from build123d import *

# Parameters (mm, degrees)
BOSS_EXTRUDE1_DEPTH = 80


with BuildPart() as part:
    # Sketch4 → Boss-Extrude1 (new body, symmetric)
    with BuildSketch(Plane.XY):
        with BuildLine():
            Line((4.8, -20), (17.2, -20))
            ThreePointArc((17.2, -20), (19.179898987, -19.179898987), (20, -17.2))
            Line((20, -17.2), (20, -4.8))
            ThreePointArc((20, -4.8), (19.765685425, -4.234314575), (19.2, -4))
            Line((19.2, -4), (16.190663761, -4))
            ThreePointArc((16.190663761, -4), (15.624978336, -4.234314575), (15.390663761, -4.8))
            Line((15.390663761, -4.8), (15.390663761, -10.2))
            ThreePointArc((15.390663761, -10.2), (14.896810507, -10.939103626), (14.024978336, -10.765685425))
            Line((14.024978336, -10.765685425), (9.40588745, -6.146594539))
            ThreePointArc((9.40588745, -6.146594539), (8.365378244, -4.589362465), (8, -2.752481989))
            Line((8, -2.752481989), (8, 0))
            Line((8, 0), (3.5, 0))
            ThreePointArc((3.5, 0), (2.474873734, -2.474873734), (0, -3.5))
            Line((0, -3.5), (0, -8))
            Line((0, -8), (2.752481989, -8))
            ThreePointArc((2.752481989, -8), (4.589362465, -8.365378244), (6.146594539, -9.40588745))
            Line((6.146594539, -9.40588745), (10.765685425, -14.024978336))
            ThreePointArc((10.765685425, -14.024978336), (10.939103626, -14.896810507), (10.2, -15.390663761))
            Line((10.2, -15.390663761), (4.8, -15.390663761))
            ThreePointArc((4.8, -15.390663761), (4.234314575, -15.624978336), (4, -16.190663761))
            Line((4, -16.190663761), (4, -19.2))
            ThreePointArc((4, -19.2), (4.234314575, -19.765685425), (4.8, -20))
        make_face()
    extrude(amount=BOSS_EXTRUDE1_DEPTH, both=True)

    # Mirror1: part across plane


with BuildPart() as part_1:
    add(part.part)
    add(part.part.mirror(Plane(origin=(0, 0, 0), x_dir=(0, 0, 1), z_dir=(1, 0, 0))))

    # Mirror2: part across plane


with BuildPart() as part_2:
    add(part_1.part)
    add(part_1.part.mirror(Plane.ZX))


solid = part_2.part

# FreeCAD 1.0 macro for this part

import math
import FreeCAD as App
import Part
import Sketcher

V = App.Vector

doc = App.newDocument("Part")
body = doc.addObject("PartDesign::Body", "Body")

# Sketch on XY plane
sketch1 = body.newObject("Sketcher::SketchObject", "Sketch")
sketch1.AttachmentSupport = (doc.getObject("XY_Plane"), [""])
sketch1.MapMode = "FlatFace"
sketch1.addGeometry(Part.LineSegment(V(4.8, -20, 0), V(17.2, -20, 0)), False)
sketch1.addGeometry(Part.ArcOfCircle(Part.Circle(V(17.2, -17.2, 0), V(0, 0, 1), 2.8), math.radians(-90), math.radians(0)), False)
sketch1.addGeometry(Part.LineSegment(V(20, -17.2, 0), V(20, -4.8, 0)), False)
sketch1.addGeometry(Part.ArcOfCircle(Part.Circle(V(19.2, -4.8, 0), V(0, 0, 1), 0.8), math.radians(0), math.radians(90)), False)
sketch1.addGeometry(Part.LineSegment(V(19.2, -4, 0), V(16.2, -4, 0)), False)
sketch1.addGeometry(Part.ArcOfCircle(Part.Circle(V(16.2, -4.8, 0), V(0, 0, 1), 0.8), math.radians(90), math.radians(180)), False)
sketch1.addGeometry(Part.LineSegment(V(15.4, -4.8, 0), V(15.4, -10.2, 0)), False)
sketch1.addGeometry(Part.ArcOfCircle(Part.Circle(V(14.6, -10.2, 0), V(0, 0, 1), 0.8), math.radians(-135), math.radians(0)), False)
sketch1.addGeometry(Part.LineSegment(V(14, -10.8, 0), V(9.4, -6.1, 0)), False)
sketch1.addGeometry(Part.ArcOfCircle(Part.Circle(V(12.8, -2.8, 0), V(0, 0, 1), 4.8), math.radians(180), math.radians(225)), False)
sketch1.addGeometry(Part.LineSegment(V(8, -2.8, 0), V(8, 0, 0)), False)
sketch1.addGeometry(Part.LineSegment(V(8, 0, 0), V(3.5, 0, 0)), False)
sketch1.addGeometry(Part.ArcOfCircle(Part.Circle(V(0, 0, 0), V(0, 0, 1), 3.5), math.radians(-90), math.radians(0)), False)
sketch1.addGeometry(Part.LineSegment(V(0, -3.5, 0), V(0, -8, 0)), False)
sketch1.addGeometry(Part.LineSegment(V(0, -8, 0), V(2.8, -8, 0)), False)
sketch1.addGeometry(Part.ArcOfCircle(Part.Circle(V(2.8, -12.8, 0), V(0, 0, 1), 4.8), math.radians(45), math.radians(90)), False)
sketch1.addGeometry(Part.LineSegment(V(6.1, -9.4, 0), V(10.8, -14, 0)), False)
sketch1.addGeometry(Part.ArcOfCircle(Part.Circle(V(10.2, -14.6, 0), V(0, 0, 1), 0.8), math.radians(-90), math.radians(45)), False)
sketch1.addGeometry(Part.LineSegment(V(10.2, -15.4, 0), V(4.8, -15.4, 0)), False)
sketch1.addGeometry(Part.ArcOfCircle(Part.Circle(V(4.8, -16.2, 0), V(0, 0, 1), 0.8), math.radians(90), math.radians(180)), False)
sketch1.addGeometry(Part.LineSegment(V(4, -16.2, 0), V(4, -19.2, 0)), False)
sketch1.addGeometry(Part.ArcOfCircle(Part.Circle(V(4.8, -19.2, 0), V(0, 0, 1), 0.8), math.radians(180), math.radians(270)), False)
sketch1.addConstraint(Sketcher.Constraint("Tangent", 0, 2, 1, 1))
sketch1.addConstraint(Sketcher.Constraint("Tangent", 1, 2, 2, 1))
sketch1.addConstraint(Sketcher.Constraint("Tangent", 2, 2, 3, 1))
sketch1.addConstraint(Sketcher.Constraint("Tangent", 3, 2, 4, 1))
sketch1.addConstraint(Sketcher.Constraint("Tangent", 4, 2, 5, 1))
sketch1.addConstraint(Sketcher.Constraint("Tangent", 5, 2, 6, 1))
sketch1.addConstraint(Sketcher.Constraint("Tangent", 6, 2, 7, 2))
sketch1.addConstraint(Sketcher.Constraint("Tangent", 7, 1, 8, 1))
sketch1.addConstraint(Sketcher.Constraint("Tangent", 8, 2, 9, 2))
sketch1.addConstraint(Sketcher.Constraint("Tangent", 9, 1, 10, 1))
sketch1.addConstraint(Sketcher.Constraint("Coincident", 10, 2, 11, 1))
sketch1.addConstraint(Sketcher.Constraint("Coincident", 11, 2, 12, 2))
sketch1.addConstraint(Sketcher.Constraint("Coincident", 12, 1, 13, 1))
sketch1.addConstraint(Sketcher.Constraint("Coincident", 13, 2, 14, 1))
sketch1.addConstraint(Sketcher.Constraint("Tangent", 14, 2, 15, 2))
sketch1.addConstraint(Sketcher.Constraint("Tangent", 15, 1, 16, 1))
sketch1.addConstraint(Sketcher.Constraint("Tangent", 16, 2, 17, 2))
sketch1.addConstraint(Sketcher.Constraint("Tangent", 17, 1, 18, 1))
sketch1.addConstraint(Sketcher.Constraint("Tangent", 18, 2, 19, 1))
sketch1.addConstraint(Sketcher.Constraint("Tangent", 19, 2, 20, 1))
sketch1.addConstraint(Sketcher.Constraint("Tangent", 20, 2, 21, 1))
sketch1.addConstraint(Sketcher.Constraint("Tangent", 21, 2, 0, 1))
sketch1.addConstraint(Sketcher.Constraint("Horizontal", 0))
sketch1.addConstraint(Sketcher.Constraint("Vertical", 2))
sketch1.addConstraint(Sketcher.Constraint("Horizontal", 4))
sketch1.addConstraint(Sketcher.Constraint("Vertical", 6))
sketch1.addConstraint(Sketcher.Constraint("Vertical", 10))
sketch1.addConstraint(Sketcher.Constraint("Horizontal", 11))
sketch1.addConstraint(Sketcher.Constraint("Vertical", 13))
sketch1.addConstraint(Sketcher.Constraint("Horizontal", 14))
sketch1.addConstraint(Sketcher.Constraint("Horizontal", 18))
sketch1.addConstraint(Sketcher.Constraint("Vertical", 20))
sketch1.addConstraint(Sketcher.Constraint("Coincident", 12, 3, -1, 1))
sketch1.addConstraint(Sketcher.Constraint("Equal", 3, 5))
sketch1.addConstraint(Sketcher.Constraint("Equal", 5, 7))
sketch1.addConstraint(Sketcher.Constraint("Equal", 9, 15))
sketch1.addConstraint(Sketcher.Constraint("Equal", 7, 17))
sketch1.addConstraint(Sketcher.Constraint("Equal", 17, 19))
sketch1.addConstraint(Sketcher.Constraint("Equal", 19, 21))
sketch1.addConstraint(Sketcher.Constraint("PointOnObject", 10, 2, -1))
sketch1.addConstraint(Sketcher.Constraint("PointOnObject", 12, 1, -2))
sketch1.addConstraint(Sketcher.Constraint("Parallel", 8, 16))
sketch1.addConstraint(Sketcher.Constraint("Equal", 0, 2))
sketch1.addConstraint(Sketcher.Constraint("Equal", 18, 6))
sketch1.addConstraint(Sketcher.Constraint("Equal", 14, 10))
sketch1.addConstraint(Sketcher.Constraint("Equal", 11, 13))
sketch1.addConstraint(Sketcher.Constraint("Equal", 4, 20))
sketch1.addConstraint(Sketcher.Constraint("Equal", 8, 16))
sketch1.addConstraint(Sketcher.Constraint("Radius", 1, 2.8))
sketch1.addConstraint(Sketcher.Constraint("Radius", 3, 0.8))
sketch1.addConstraint(Sketcher.Constraint("Radius", 9, 4.8))
sketch1.addConstraint(Sketcher.Constraint("Radius", 12, 3.5))
sketch1.addConstraint(Sketcher.Constraint("DistanceX", 0, 1, 0, 2, 12.4))
sketch1.addConstraint(Sketcher.Constraint("DistanceX", 11, 2, 11, 1, 4.5))
sketch1.addConstraint(Sketcher.Constraint("DistanceX", 18, 2, 18, 1, 5.4))
sketch1.addConstraint(Sketcher.Constraint("DistanceY", 0, 2, -1, 1, 20.0))
sketch1.addConstraint(Sketcher.Constraint("DistanceX", 14, 1, 14, 2, 2.752482))
pad1 = body.newObject("PartDesign::Pad", "Pad")
pad1.Profile = sketch1
pad1.Length = 160
pad1.Midplane = True
body2 = doc.addObject("PartDesign::Body", "Body001")
doc.recompute()

body2.BaseFeature = body
doc.recompute()

mirroring = doc.addObject("Part::Mirroring", "Mirroring")
mirroring.Source = body
mirroring.Base = V(0, 0, 0)
mirroring.Normal = V(1, 0, 0)
body3 = doc.addObject("PartDesign::Body", "Body002")
body3.BaseFeature = mirroring
boolean = body2.newObject("PartDesign::Boolean", "Boolean")
boolean.Type = "Fuse"
boolean.addObjects([body3])
doc.recompute()
body4 = doc.addObject("PartDesign::Body", "Body003")
doc.recompute()

body4.BaseFeature = body2
doc.recompute()

mirroring2 = doc.addObject("Part::Mirroring", "Mirroring001")
mirroring2.Source = body2
mirroring2.Base = V(0, 0, 0)
mirroring2.Normal = V(0, 1, 0)
body5 = doc.addObject("PartDesign::Body", "Body004")
body5.BaseFeature = mirroring2
boolean2 = body4.newObject("PartDesign::Boolean", "Boolean001")
boolean2.Type = "Fuse"
boolean2.addObjects([body5])
doc.recompute()
mirroring.Visibility = False
mirroring2.Visibility = False

doc.recompute()
